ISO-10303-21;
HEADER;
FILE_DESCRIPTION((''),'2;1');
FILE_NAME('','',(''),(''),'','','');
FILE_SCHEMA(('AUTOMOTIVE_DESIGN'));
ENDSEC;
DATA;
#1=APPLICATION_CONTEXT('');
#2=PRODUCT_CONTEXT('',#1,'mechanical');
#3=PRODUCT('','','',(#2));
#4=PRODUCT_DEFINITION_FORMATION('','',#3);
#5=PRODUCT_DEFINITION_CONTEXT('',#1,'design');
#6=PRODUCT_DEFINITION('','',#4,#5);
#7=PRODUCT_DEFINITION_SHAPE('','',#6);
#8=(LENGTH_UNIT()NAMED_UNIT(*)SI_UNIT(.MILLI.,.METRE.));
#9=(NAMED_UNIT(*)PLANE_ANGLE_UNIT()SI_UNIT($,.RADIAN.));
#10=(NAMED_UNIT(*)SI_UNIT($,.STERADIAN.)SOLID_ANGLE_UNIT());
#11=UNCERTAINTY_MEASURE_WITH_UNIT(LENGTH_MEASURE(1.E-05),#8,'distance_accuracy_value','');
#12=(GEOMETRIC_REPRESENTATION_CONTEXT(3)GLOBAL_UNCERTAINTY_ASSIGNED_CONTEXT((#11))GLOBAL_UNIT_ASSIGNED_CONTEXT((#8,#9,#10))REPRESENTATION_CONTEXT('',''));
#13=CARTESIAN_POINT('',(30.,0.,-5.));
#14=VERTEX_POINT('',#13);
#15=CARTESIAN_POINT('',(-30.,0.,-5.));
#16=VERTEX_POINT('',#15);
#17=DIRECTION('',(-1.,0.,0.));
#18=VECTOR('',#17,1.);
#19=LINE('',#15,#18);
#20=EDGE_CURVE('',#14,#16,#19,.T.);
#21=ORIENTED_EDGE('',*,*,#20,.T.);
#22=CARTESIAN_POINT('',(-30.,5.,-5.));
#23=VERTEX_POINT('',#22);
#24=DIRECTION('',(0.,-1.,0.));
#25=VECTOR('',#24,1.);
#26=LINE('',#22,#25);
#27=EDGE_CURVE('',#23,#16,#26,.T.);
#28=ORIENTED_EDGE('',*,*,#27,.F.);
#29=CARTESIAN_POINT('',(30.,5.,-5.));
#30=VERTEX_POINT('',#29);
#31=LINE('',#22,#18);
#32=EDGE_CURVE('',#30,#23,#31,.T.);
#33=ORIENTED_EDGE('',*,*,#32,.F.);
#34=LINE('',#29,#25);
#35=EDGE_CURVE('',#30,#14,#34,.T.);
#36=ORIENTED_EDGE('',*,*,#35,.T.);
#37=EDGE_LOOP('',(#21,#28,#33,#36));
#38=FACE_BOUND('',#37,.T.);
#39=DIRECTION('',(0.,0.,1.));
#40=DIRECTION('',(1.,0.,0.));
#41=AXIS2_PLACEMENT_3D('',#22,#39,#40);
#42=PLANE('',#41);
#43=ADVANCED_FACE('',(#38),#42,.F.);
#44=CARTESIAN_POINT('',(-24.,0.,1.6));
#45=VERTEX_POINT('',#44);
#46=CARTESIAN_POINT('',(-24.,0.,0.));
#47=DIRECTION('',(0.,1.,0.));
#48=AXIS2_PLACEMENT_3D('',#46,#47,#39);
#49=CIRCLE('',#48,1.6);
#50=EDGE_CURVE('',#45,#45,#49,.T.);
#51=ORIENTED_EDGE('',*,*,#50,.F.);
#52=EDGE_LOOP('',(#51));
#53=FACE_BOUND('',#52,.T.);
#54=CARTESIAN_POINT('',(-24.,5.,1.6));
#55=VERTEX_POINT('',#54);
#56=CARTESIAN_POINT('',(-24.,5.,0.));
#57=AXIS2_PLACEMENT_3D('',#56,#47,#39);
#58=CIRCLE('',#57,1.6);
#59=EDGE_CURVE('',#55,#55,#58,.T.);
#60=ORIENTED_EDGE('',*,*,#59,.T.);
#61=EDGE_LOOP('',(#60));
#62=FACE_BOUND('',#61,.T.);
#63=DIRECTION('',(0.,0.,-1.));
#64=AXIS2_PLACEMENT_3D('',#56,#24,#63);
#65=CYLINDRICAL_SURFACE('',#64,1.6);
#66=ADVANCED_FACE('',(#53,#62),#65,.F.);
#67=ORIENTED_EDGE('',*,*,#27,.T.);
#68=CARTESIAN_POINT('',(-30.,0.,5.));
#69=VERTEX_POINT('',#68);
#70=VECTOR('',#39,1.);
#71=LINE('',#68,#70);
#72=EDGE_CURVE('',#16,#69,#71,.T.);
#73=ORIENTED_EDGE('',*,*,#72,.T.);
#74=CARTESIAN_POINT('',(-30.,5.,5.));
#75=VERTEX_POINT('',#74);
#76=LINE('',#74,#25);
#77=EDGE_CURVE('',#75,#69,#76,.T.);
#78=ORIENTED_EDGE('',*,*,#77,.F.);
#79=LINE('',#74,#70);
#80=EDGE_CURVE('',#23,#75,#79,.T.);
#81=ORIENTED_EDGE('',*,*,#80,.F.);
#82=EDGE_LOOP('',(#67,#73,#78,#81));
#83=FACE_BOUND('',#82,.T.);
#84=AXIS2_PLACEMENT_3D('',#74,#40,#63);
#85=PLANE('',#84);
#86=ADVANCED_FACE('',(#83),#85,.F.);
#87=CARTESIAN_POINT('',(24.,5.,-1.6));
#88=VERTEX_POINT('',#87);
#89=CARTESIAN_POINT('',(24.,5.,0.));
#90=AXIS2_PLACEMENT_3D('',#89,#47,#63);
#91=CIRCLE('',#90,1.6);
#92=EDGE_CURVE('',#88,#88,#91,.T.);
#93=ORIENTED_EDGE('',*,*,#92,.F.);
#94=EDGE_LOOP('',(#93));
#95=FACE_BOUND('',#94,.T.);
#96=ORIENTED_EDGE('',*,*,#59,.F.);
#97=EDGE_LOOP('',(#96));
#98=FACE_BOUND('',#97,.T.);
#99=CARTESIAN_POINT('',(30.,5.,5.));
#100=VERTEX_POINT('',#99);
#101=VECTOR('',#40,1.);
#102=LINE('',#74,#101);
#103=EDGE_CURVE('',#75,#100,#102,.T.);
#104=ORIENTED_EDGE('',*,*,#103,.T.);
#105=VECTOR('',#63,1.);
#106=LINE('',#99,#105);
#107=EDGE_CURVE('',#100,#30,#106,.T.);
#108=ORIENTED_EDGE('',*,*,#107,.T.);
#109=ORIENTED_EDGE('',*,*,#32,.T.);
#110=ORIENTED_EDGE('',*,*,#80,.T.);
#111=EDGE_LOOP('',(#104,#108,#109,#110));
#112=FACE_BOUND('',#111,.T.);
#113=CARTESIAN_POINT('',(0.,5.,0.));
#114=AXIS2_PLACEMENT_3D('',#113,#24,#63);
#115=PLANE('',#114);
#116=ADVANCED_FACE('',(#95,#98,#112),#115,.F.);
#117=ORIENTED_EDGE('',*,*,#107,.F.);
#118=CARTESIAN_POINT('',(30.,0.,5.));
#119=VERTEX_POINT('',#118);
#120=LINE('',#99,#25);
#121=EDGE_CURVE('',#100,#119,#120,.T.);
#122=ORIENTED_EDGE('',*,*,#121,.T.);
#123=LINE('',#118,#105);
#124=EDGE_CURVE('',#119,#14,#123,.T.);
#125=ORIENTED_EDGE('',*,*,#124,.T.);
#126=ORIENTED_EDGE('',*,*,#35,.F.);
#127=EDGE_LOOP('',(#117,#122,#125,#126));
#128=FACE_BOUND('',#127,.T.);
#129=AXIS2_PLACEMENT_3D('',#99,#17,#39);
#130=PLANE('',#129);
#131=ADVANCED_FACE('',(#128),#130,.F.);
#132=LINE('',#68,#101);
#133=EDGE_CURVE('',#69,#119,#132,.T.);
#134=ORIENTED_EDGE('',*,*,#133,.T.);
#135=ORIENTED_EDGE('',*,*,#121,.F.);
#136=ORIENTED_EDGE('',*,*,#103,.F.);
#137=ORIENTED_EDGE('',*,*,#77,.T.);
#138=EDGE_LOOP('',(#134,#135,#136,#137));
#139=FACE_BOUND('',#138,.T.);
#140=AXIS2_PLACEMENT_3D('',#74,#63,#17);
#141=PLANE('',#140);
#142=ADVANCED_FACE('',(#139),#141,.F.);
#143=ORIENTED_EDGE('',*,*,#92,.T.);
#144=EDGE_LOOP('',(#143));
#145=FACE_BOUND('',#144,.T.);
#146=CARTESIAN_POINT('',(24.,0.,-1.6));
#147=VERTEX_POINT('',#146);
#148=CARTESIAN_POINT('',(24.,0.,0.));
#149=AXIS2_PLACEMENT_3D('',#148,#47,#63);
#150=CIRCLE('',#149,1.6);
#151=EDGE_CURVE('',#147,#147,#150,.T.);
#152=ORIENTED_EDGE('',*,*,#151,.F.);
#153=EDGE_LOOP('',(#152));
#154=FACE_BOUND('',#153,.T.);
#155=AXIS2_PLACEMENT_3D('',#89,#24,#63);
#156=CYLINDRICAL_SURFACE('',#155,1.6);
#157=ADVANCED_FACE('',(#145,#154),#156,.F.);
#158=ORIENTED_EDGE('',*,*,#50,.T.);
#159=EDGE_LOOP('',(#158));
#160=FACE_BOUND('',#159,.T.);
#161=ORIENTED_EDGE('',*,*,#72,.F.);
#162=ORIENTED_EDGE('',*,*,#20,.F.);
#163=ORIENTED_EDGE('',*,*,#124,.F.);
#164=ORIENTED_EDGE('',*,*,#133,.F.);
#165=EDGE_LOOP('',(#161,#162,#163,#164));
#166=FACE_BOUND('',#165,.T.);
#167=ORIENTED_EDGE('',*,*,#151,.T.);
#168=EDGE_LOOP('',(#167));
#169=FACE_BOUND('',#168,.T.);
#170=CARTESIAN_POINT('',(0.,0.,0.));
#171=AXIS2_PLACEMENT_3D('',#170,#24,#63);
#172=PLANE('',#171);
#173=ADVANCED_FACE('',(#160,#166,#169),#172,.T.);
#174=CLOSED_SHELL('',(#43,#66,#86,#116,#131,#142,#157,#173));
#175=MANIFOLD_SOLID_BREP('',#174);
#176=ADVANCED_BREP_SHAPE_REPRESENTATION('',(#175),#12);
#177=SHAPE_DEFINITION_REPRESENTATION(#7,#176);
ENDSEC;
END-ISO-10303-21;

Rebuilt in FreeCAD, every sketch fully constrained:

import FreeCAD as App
import Part
import Sketcher


def add_polygon(sketch, points):
    """Adds a closed chain of lines whose ends are joined by coincident constraints."""
    first, n = sketch.GeometryCount, len(points)
    for a, b in zip(points, points[1:] + points[:1]):
        sketch.addGeometry(Part.LineSegment(App.Vector(*a, 0), App.Vector(*b, 0)), False)
    for i in range(n):
        sketch.addConstraint(Sketcher.Constraint("Coincident", first + i, 2, first + (i + 1) % n, 1))

doc = App.newDocument("Part")
params = doc.addObject("Spreadsheet::Sheet", "Params")
for row, (alias, value) in enumerate([
    ("sketch1_diameter", "3.2 mm"),
    ("sketch1_width", "60 mm"),
    ("sketch1_height", "10 mm"),
    ("pad1_length", "5 mm"),
], start=1):
    params.set(f"A{row}", alias)
    params.set(f"B{row}", "=" + value)
    params.setAlias(f"B{row}", alias)

body = doc.addObject("PartDesign::Body", "Body")

sketch1 = body.newObject("Sketcher::SketchObject", "Sketch")
sketch1.AttachmentSupport = (doc.getObject("XZ_Plane"), [""])
sketch1.MapMode = "FlatFace"
add_polygon(sketch1, [(-30, -5), (-30, 5), (30, 5), (30, -5)])
sketch1.addGeometry(Part.Circle(App.Vector(-24, 0, 0), App.Vector(0, 0, 1), 1.6), False)
sketch1.addGeometry(Part.Circle(App.Vector(24, 0, 0), App.Vector(0, 0, 1), 1.6), False)
sketch1.addConstraint([
    Sketcher.Constraint("Vertical", 0),
    Sketcher.Constraint("Horizontal", 1),
    Sketcher.Constraint("Vertical", 2),
    Sketcher.Constraint("Horizontal", 3),
    Sketcher.Constraint("Equal", 4, 5),
    Sketcher.Constraint("Symmetric", 4, 3, 5, 3, -1, 1),
    Sketcher.Constraint("Symmetric", 0, 2, 2, 2, -1, 1),
    Sketcher.Constraint("PointOnObject", 4, 3, -1),
    Sketcher.Constraint("Diameter", 4, 3.2),
    Sketcher.Constraint("DistanceX", 1, 1, 1, 2, 60.0),
    Sketcher.Constraint("DistanceY", 0, 1, 0, 2, 10.0),
    Sketcher.Constraint("DistanceX", 4, 3, -1, 1, 24.0),
])
sketch1.setExpression("Constraints[12]", "Params.sketch1_diameter")
sketch1.setExpression("Constraints[13]", "Params.sketch1_width")
sketch1.setExpression("Constraints[14]", "Params.sketch1_height")
pad1 = body.newObject("PartDesign::Pad", "Pad")
pad1.Profile = sketch1
pad1.setExpression("Length", "Params.pad1_length")
pad1.Reversed = True

doc.recompute()
